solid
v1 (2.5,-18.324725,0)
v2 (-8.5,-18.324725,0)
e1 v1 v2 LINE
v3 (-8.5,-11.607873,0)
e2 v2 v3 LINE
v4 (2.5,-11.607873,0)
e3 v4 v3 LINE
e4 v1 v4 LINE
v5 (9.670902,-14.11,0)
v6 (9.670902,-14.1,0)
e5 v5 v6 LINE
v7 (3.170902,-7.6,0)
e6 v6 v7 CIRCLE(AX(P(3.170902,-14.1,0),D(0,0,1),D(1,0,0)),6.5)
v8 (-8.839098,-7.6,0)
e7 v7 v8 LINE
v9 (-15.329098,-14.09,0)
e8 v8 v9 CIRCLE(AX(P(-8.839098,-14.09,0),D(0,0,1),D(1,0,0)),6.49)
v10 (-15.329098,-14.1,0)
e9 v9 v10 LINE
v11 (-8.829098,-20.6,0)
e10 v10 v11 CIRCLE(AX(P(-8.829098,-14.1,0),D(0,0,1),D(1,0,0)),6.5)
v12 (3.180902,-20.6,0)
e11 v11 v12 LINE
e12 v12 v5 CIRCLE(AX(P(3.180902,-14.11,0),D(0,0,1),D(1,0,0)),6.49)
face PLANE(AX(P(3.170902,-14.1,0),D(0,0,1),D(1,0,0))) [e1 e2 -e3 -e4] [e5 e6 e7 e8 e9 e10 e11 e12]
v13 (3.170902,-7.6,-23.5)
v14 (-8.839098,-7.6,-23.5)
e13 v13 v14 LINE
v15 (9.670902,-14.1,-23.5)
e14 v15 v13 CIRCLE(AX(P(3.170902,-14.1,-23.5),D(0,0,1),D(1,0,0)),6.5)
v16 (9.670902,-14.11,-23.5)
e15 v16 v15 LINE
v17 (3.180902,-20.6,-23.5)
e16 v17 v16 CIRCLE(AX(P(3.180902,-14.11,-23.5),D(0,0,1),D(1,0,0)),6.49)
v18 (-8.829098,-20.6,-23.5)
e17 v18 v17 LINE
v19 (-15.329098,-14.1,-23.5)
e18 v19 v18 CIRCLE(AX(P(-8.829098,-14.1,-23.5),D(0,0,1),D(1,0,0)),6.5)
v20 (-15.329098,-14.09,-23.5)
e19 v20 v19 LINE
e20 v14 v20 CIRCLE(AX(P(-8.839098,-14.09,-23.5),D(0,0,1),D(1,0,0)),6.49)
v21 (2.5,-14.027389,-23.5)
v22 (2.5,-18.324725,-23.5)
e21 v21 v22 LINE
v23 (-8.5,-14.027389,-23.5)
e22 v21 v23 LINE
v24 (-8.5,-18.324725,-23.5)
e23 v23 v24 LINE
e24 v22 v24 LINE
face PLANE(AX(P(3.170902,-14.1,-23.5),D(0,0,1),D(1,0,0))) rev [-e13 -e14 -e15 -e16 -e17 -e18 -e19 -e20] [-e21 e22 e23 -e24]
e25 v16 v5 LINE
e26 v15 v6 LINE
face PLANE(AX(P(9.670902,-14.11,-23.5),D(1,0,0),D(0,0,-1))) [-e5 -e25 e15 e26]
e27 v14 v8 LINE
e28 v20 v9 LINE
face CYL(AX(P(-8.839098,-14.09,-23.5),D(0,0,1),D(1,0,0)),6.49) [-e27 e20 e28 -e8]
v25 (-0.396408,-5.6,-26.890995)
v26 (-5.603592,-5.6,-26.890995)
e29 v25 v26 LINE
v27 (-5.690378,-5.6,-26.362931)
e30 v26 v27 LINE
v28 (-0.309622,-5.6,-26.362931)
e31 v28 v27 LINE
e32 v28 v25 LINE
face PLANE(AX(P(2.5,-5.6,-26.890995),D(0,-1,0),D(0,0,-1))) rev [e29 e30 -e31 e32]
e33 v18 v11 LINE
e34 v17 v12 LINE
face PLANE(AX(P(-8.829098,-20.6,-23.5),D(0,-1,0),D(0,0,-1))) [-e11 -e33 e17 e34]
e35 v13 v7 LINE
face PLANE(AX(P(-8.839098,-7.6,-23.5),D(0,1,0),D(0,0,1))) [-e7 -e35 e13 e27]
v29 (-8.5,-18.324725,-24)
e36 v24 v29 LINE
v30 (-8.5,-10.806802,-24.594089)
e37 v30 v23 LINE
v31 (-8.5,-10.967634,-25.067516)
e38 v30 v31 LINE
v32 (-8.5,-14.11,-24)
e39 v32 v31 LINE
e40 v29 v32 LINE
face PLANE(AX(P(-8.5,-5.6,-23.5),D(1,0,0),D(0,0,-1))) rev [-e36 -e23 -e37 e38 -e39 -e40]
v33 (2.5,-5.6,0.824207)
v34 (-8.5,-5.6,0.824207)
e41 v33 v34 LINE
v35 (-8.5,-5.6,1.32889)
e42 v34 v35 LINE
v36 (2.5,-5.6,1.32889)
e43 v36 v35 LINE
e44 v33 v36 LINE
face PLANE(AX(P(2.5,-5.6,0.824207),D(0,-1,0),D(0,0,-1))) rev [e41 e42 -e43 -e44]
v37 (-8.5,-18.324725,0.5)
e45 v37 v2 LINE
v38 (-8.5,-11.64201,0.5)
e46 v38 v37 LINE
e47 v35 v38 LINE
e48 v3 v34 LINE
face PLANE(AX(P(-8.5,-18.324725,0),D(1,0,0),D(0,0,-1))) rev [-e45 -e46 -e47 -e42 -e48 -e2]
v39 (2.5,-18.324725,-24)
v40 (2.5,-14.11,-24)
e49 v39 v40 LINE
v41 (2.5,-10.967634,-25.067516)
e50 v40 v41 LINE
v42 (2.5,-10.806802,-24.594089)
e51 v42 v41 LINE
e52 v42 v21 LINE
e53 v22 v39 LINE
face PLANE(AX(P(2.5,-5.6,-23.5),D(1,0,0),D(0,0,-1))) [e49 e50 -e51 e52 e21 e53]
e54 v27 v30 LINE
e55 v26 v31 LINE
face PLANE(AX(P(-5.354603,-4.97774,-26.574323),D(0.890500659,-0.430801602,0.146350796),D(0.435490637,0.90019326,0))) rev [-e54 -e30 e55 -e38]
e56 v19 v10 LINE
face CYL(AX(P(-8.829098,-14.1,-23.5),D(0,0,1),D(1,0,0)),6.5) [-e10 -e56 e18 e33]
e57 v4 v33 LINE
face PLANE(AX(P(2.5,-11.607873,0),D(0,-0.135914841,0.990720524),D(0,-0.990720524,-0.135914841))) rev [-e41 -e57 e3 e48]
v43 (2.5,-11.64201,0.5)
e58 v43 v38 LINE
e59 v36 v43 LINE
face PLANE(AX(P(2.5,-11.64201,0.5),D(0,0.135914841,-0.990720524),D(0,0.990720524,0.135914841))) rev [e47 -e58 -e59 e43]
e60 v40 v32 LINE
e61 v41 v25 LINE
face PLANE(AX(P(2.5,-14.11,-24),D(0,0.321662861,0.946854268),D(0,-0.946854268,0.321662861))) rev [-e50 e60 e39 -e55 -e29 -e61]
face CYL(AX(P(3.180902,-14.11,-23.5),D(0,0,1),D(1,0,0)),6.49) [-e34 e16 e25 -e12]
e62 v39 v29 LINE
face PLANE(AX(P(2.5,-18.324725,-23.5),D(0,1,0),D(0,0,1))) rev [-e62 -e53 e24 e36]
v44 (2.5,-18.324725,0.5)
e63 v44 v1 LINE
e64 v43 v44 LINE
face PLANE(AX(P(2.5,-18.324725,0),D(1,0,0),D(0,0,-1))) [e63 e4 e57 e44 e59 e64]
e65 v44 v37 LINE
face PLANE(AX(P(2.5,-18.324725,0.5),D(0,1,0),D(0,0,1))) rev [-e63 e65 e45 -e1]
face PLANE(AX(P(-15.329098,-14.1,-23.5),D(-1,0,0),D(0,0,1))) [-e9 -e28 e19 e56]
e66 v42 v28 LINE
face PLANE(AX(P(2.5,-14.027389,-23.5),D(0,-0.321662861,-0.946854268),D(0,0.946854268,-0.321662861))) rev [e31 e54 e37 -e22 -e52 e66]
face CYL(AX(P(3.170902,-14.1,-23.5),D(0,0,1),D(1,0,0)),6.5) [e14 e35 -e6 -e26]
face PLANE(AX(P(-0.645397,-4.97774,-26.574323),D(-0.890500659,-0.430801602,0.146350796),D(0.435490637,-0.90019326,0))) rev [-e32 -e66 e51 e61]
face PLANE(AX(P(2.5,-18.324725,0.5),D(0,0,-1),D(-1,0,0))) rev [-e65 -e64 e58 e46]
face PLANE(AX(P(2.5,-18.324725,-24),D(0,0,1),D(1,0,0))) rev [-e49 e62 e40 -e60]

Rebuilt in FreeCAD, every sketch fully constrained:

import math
import FreeCAD as App
import Part
import Sketcher

doc = App.newDocument("Part")
body = doc.addObject("PartDesign::Body", "Body")

# Sketch on XY plane
sketch1 = body.newObject("Sketcher::SketchObject", "Sketch")
sketch1.AttachmentSupport = (doc.getObject("XY_Plane"), [""])
sketch1.MapMode = "FlatFace"
sketch1.addGeometry(Part.LineSegment(App.Vector(3.171, -7.6, 0), App.Vector(-8.839, -7.6, 0)), False)
sketch1.addGeometry(Part.ArcOfCircle(Part.Circle(App.Vector(-8.839, -14.09, 0), App.Vector(0, 0, 1), 6.49), math.radians(90), math.radians(180)), False)
sketch1.addGeometry(Part.LineSegment(App.Vector(-15.329, -14.09, 0), App.Vector(-15.329, -14.1, 0)), False)
sketch1.addGeometry(Part.ArcOfCircle(Part.Circle(App.Vector(-8.829, -14.1, 0), App.Vector(0, 0, 1), 6.5), math.radians(180), math.radians(270)), False)
sketch1.addGeometry(Part.LineSegment(App.Vector(-8.829, -20.6, 0), App.Vector(3.181, -20.6, 0)), False)
sketch1.addGeometry(Part.ArcOfCircle(Part.Circle(App.Vector(3.181, -14.11, 0), App.Vector(0, 0, 1), 6.49), math.radians(-90), math.radians(0)), False)
sketch1.addGeometry(Part.LineSegment(App.Vector(9.671, -14.11, 0), App.Vector(9.671, -14.1, 0)), False)
sketch1.addGeometry(Part.ArcOfCircle(Part.Circle(App.Vector(3.171, -14.1, 0), App.Vector(0, 0, 1), 6.5), math.radians(0), math.radians(90)), False)
sketch1.addConstraint(Sketcher.Constraint("Tangent", 0, 2, 1, 1))
sketch1.addConstraint(Sketcher.Constraint("Tangent", 1, 2, 2, 1))
sketch1.addConstraint(Sketcher.Constraint("Tangent", 2, 2, 3, 1))
sketch1.addConstraint(Sketcher.Constraint("Tangent", 3, 2, 4, 1))
sketch1.addConstraint(Sketcher.Constraint("Tangent", 4, 2, 5, 1))
sketch1.addConstraint(Sketcher.Constraint("Tangent", 5, 2, 6, 1))
sketch1.addConstraint(Sketcher.Constraint("Tangent", 6, 2, 7, 1))
sketch1.addConstraint(Sketcher.Constraint("Tangent", 7, 2, 0, 1))
sketch1.addConstraint(Sketcher.Constraint("Horizontal", 0))
sketch1.addConstraint(Sketcher.Constraint("Horizontal", 4))
sketch1.addConstraint(Sketcher.Constraint("Equal", 1, 5))
sketch1.addConstraint(Sketcher.Constraint("Equal", 3, 7))
sketch1.addConstraint(Sketcher.Constraint("Horizontal", 3, 3, 7, 3))
sketch1.addConstraint(Sketcher.Constraint("Horizontal", 7, 3, 2, 2))
sketch1.addConstraint(Sketcher.Constraint("Horizontal", 2, 2, 6, 2))
sketch1.addConstraint(Sketcher.Constraint("Radius", 3, 6.5))
sketch1.addConstraint(Sketcher.Constraint("Radius", 1, 6.49))
sketch1.addConstraint(Sketcher.Constraint("DistanceX", 3, 3, 7, 3, 12.0))
sketch1.addConstraint(Sketcher.Constraint("DistanceY", 3, 3, -1, 1, 14.1))
sketch1.addConstraint(Sketcher.Constraint("DistanceX", 1, 3, -1, 1, 8.839098))
pad1 = body.newObject("PartDesign::Pad", "Pad")
pad1.Profile = sketch1
pad1.Length = 23.5
pad1.Reversed = True

# Sketch on YZ plane
sketch2 = body.newObject("Sketcher::SketchObject", "Sketch001")
sketch2.AttachmentSupport = (doc.getObject("YZ_Plane"), [""])
sketch2.MapMode = "FlatFace"
sketch2.AttachmentOffset = App.Placement(App.Vector(0, 0, -3), App.Rotation())
sketch2.addGeometry(Part.LineSegment(App.Vector(-18.324725, 0, 0), App.Vector(-11.607873, 0, 0)), False)
sketch2.addGeometry(Part.LineSegment(App.Vector(-11.607873, 0, 0), App.Vector(-5.6, 0.824207, 0)), False)
sketch2.addGeometry(Part.LineSegment(App.Vector(-5.6, 0.824207, 0), App.Vector(-5.6, 1.32889, 0)), False)
sketch2.addGeometry(Part.LineSegment(App.Vector(-5.6, 1.32889, 0), App.Vector(-11.64201, 0.5, 0)), False)
sketch2.addGeometry(Part.LineSegment(App.Vector(-11.64201, 0.5, 0), App.Vector(-18.324725, 0.5, 0)), False)
sketch2.addGeometry(Part.LineSegment(App.Vector(-18.324725, 0.5, 0), App.Vector(-18.324725, 0, 0)), False)
sketch2.addConstraint(Sketcher.Constraint("Coincident", 0, 2, 1, 1))
sketch2.addConstraint(Sketcher.Constraint("Coincident", 1, 2, 2, 1))
sketch2.addConstraint(Sketcher.Constraint("Coincident", 2, 2, 3, 1))
sketch2.addConstraint(Sketcher.Constraint("Coincident", 3, 2, 4, 1))
sketch2.addConstraint(Sketcher.Constraint("Coincident", 4, 2, 5, 1))
sketch2.addConstraint(Sketcher.Constraint("Coincident", 5, 2, 0, 1))
sketch2.addConstraint(Sketcher.Constraint("Horizontal", 0))
sketch2.addConstraint(Sketcher.Constraint("Vertical", 2))
sketch2.addConstraint(Sketcher.Constraint("Horizontal", 4))
sketch2.addConstraint(Sketcher.Constraint("Vertical", 5))
sketch2.addConstraint(Sketcher.Constraint("PointOnObject", 0, 2, -1))
sketch2.addConstraint(Sketcher.Constraint("DistanceY", 5, 2, 5, 1, 0.5))
sketch2.addConstraint(Sketcher.Constraint("DistanceX", 1, 2, -1, 1, 5.6))
sketch2.addConstraint(Sketcher.Constraint("Distance", 3, 6.098602))
sketch2.addConstraint(Sketcher.Constraint("DistanceX", 0, 1, 0, 2, 6.716852))
sketch2.addConstraint(Sketcher.Constraint("DistanceX", 4, 2, 4, 1, 6.682715))
sketch2.addConstraint(Sketcher.Constraint("DistanceY", 2, 1, 2, 2, 0.504683))
sketch2.addConstraint(Sketcher.Constraint("DistanceY", -1, 1, 2, 2, 1.32889))
pad2 = body.newObject("PartDesign::Pad", "Pad001")
pad2.Profile = sketch2
pad2.Length = 11
pad2.Midplane = True

# Sketch on YZ plane
sketch3 = body.newObject("Sketcher::SketchObject", "Sketch002")
sketch3.AttachmentSupport = (doc.getObject("YZ_Plane"), [""])
sketch3.MapMode = "FlatFace"
sketch3.AttachmentOffset = App.Placement(App.Vector(0, 0, -3), App.Rotation())
sketch3.addGeometry(Part.LineSegment(App.Vector(-18.3, -23.5, 0), App.Vector(-18.3, -24, 0)), False)
sketch3.addGeometry(Part.LineSegment(App.Vector(-18.3, -24, 0), App.Vector(-14.1, -24, 0)), False)
sketch3.addGeometry(Part.LineSegment(App.Vector(-14.1, -24, 0), App.Vector(-5.6, -26.9, 0)), False)
sketch3.addGeometry(Part.LineSegment(App.Vector(-5.6, -26.9, 0), App.Vector(-5.6, -26.4, 0)), False)
sketch3.addGeometry(Part.LineSegment(App.Vector(-5.6, -26.4, 0), App.Vector(-14, -23.5, 0)), False)
sketch3.addGeometry(Part.LineSegment(App.Vector(-14, -23.5, 0), App.Vector(-18.3, -23.5, 0)), False)
sketch3.addConstraint(Sketcher.Constraint("Coincident", 0, 2, 1, 1))
sketch3.addConstraint(Sketcher.Constraint("Coincident", 1, 2, 2, 1))
sketch3.addConstraint(Sketcher.Constraint("Coincident", 2, 2, 3, 1))
sketch3.addConstraint(Sketcher.Constraint("Coincident", 3, 2, 4, 1))
sketch3.addConstraint(Sketcher.Constraint("Coincident", 4, 2, 5, 1))
sketch3.addConstraint(Sketcher.Constraint("Coincident", 5, 2, 0, 1))
sketch3.addConstraint(Sketcher.Constraint("Vertical", 0))
sketch3.addConstraint(Sketcher.Constraint("Horizontal", 1))
sketch3.addConstraint(Sketcher.Constraint("Vertical", 3))
sketch3.addConstraint(Sketcher.Constraint("Horizontal", 5))
sketch3.addConstraint(Sketcher.Constraint("Parallel", 2, 4))
sketch3.addConstraint(Sketcher.Constraint("DistanceY", 0, 2, 0, 1, 0.5))
sketch3.addConstraint(Sketcher.Constraint("DistanceY", 0, 2, -1, 1, 24.0))
sketch3.addConstraint(Sketcher.Constraint("DistanceX", 2, 2, -1, 1, 5.6))
sketch3.addConstraint(Sketcher.Constraint("DistanceX", 1, 2, -1, 1, 14.11))
sketch3.addConstraint(Sketcher.Constraint("DistanceX", 1, 1, 1, 2, 4.214725))
sketch3.addConstraint(Sketcher.Constraint("DistanceX", 5, 2, 5, 1, 4.297335))
sketch3.addConstraint(Sketcher.Constraint("DistanceY", 3, 1, 3, 2, 0.528064))
pad3 = body.newObject("PartDesign::Pad", "Pad002")
pad3.Profile = sketch3
pad3.Length = 11
pad3.Midplane = True

# Sketch on an angled plane
sketch4 = body.newObject("Sketcher::SketchObject", "Sketch003")
sketch4.Placement = App.Placement(App.Vector(0, -8.769548, -25.814244), App.Rotation(App.Vector(-1, 0, 0), App.Vector(0, 0.946854268, -0.321662861), App.Vector(0, -0.321662861, -0.946854268), "ZXY"))
sketch4.addGeometry(Part.LineSegment(App.Vector(-2.5, -2.3, 0), App.Vector(0.6, 3.8, 0)), False)
sketch4.addGeometry(Part.LineSegment(App.Vector(0.6, 3.8, 0), App.Vector(5.4, 3.8, 0)), False)
sketch4.addGeometry(Part.LineSegment(App.Vector(5.4, 3.8, 0), App.Vector(8.5, -2.3, 0)), False)
sketch4.addGeometry(Part.LineSegment(App.Vector(8.5, -2.3, 0), App.Vector(9.3, -2.3, 0)), False)
sketch4.addGeometry(Part.LineSegment(App.Vector(9.3, -2.3, 0), App.Vector(9.3, 4.7, 0)), False)
sketch4.addGeometry(Part.LineSegment(App.Vector(9.3, 4.7, 0), App.Vector(-3.3, 4.7, 0)), False)
sketch4.addGeometry(Part.LineSegment(App.Vector(-3.3, 4.7, 0), App.Vector(-3.3, -2.3, 0)), False)
sketch4.addGeometry(Part.LineSegment(App.Vector(-3.3, -2.3, 0), App.Vector(-2.5, -2.3, 0)), False)
sketch4.addConstraint(Sketcher.Constraint("Coincident", 0, 2, 1, 1))
sketch4.addConstraint(Sketcher.Constraint("Coincident", 1, 2, 2, 1))
sketch4.addConstraint(Sketcher.Constraint("Coincident", 2, 2, 3, 1))
sketch4.addConstraint(Sketcher.Constraint("Coincident", 3, 2, 4, 1))
sketch4.addConstraint(Sketcher.Constraint("Coincident", 4, 2, 5, 1))
sketch4.addConstraint(Sketcher.Constraint("Coincident", 5, 2, 6, 1))
sketch4.addConstraint(Sketcher.Constraint("Coincident", 6, 2, 7, 1))
sketch4.addConstraint(Sketcher.Constraint("Coincident", 7, 2, 0, 1))
sketch4.addConstraint(Sketcher.Constraint("Horizontal", 1))
sketch4.addConstraint(Sketcher.Constraint("Horizontal", 3))
sketch4.addConstraint(Sketcher.Constraint("Vertical", 4))
sketch4.addConstraint(Sketcher.Constraint("Horizontal", 5))
sketch4.addConstraint(Sketcher.Constraint("Vertical", 6))
sketch4.addConstraint(Sketcher.Constraint("Horizontal", 7))
sketch4.addConstraint(Sketcher.Constraint("Horizontal", 3, 2, 6, 2))
sketch4.addConstraint(Sketcher.Constraint("Equal", 3, 7))
sketch4.addConstraint(Sketcher.Constraint("Equal", 0, 2))
sketch4.addConstraint(Sketcher.Constraint("DistanceX", 7, 2, 2, 2, 11.0))
sketch4.addConstraint(Sketcher.Constraint("DistanceX", -1, 1, 2, 2, 8.5))
sketch4.addConstraint(Sketcher.Constraint("DistanceX", 3, 1, 3, 2, 0.757579))
sketch4.addConstraint(Sketcher.Constraint("DistanceY", 4, 1, 4, 2, 7.041451))
sketch4.addConstraint(Sketcher.Constraint("DistanceX", 1, 1, 1, 2, 4.709206))
sketch4.addConstraint(Sketcher.Constraint("DistanceY", -1, 1, 0, 2, 3.834778))
sketch4.addConstraint(Sketcher.Constraint("DistanceY", 2, 2, -1, 1, 2.321462))
pocket1 = body.newObject("PartDesign::Pocket", "Pocket")
pocket1.Profile = sketch4
pocket1.Length = 0.5

doc.recompute()
